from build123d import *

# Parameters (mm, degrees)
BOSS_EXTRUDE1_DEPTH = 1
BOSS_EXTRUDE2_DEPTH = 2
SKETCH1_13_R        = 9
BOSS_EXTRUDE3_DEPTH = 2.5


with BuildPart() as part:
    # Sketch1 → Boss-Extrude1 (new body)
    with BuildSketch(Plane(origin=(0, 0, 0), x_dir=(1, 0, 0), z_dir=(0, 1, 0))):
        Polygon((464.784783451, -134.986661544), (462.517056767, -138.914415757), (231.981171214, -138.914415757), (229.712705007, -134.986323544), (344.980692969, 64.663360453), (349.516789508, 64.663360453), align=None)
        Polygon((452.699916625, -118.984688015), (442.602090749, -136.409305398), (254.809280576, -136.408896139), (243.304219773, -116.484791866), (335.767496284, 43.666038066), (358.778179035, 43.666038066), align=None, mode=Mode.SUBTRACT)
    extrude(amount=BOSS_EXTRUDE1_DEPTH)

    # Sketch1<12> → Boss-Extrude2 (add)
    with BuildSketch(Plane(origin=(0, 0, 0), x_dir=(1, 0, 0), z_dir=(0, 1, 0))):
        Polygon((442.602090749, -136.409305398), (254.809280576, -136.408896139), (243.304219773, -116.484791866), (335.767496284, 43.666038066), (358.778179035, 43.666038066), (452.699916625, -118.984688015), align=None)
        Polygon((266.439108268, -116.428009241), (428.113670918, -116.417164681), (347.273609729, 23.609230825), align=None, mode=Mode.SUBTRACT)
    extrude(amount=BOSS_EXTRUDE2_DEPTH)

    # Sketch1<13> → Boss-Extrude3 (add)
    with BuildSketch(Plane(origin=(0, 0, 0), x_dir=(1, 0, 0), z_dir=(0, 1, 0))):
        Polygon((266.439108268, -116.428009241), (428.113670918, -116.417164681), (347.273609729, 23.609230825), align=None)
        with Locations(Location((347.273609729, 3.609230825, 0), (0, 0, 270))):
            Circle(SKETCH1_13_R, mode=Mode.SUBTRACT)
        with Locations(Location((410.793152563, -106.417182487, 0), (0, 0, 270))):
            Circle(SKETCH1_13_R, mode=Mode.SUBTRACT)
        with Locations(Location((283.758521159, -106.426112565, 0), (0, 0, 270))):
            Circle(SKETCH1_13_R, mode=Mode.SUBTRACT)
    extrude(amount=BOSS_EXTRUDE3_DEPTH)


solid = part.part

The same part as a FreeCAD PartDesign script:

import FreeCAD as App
import Part
import Sketcher

V = App.Vector
Q = App.Units.Quantity

doc = App.newDocument("Part")
body = doc.addObject("PartDesign::Body", "Body")

sketch1 = body.newObject("Sketcher::SketchObject", "Sketch")
sketch1.AttachmentSupport = (doc.getObject("XZ_Plane"), [""])
sketch1.MapMode = "FlatFace"
sketch1.addGeometry(Part.LineSegment(V(462.5, 138.9, 0), V(464.8, 135, 0)), False)
sketch1.addGeometry(Part.LineSegment(V(464.8, 135, 0), V(349.5, -64.7, 0)), False)
sketch1.addGeometry(Part.LineSegment(V(349.5, -64.7, 0), V(345, -64.7, 0)), False)
sketch1.addGeometry(Part.LineSegment(V(345, -64.7, 0), V(229.7, 135, 0)), False)
sketch1.addGeometry(Part.LineSegment(V(229.7, 135, 0), V(232, 138.9, 0)), False)
sketch1.addGeometry(Part.LineSegment(V(232, 138.9, 0), V(462.5, 138.9, 0)), False)
sketch1.addGeometry(Part.LineSegment(V(452.7, 119, 0), V(442.6, 136.4, 0)), False)
sketch1.addGeometry(Part.LineSegment(V(442.6, 136.4, 0), V(254.8, 136.4, 0)), False)
sketch1.addGeometry(Part.LineSegment(V(254.8, 136.4, 0), V(243.3, 116.5, 0)), False)
sketch1.addGeometry(Part.LineSegment(V(243.3, 116.5, 0), V(335.8, -43.7, 0)), False)
sketch1.addGeometry(Part.LineSegment(V(335.8, -43.7, 0), V(358.8, -43.7, 0)), False)
sketch1.addGeometry(Part.LineSegment(V(358.8, -43.7, 0), V(452.7, 119, 0)), False)
sketch1.addConstraint(Sketcher.Constraint("Coincident", 0, 2, 1, 1))
sketch1.addConstraint(Sketcher.Constraint("Coincident", 1, 2, 2, 1))
sketch1.addConstraint(Sketcher.Constraint("Coincident", 2, 2, 3, 1))
sketch1.addConstraint(Sketcher.Constraint("Coincident", 3, 2, 4, 1))
sketch1.addConstraint(Sketcher.Constraint("Coincident", 4, 2, 5, 1))
sketch1.addConstraint(Sketcher.Constraint("Coincident", 5, 2, 0, 1))
sketch1.addConstraint(Sketcher.Constraint("Coincident", 6, 2, 7, 1))
sketch1.addConstraint(Sketcher.Constraint("Coincident", 7, 2, 8, 1))
sketch1.addConstraint(Sketcher.Constraint("Coincident", 8, 2, 9, 1))
sketch1.addConstraint(Sketcher.Constraint("Coincident", 9, 2, 10, 1))
sketch1.addConstraint(Sketcher.Constraint("Coincident", 10, 2, 11, 1))
sketch1.addConstraint(Sketcher.Constraint("Coincident", 11, 2, 6, 1))
sketch1.addConstraint(Sketcher.Constraint("Horizontal", 2))
sketch1.addConstraint(Sketcher.Constraint("Horizontal", 5))
sketch1.addConstraint(Sketcher.Constraint("Horizontal", 10))
sketch1.addConstraint(Sketcher.Constraint("Parallel", 3, 9))
sketch1.addConstraint(Sketcher.Constraint("Parallel", 8, 11))
sketch1.addConstraint(Sketcher.Constraint("Angle", 1, Q("-120 deg")))
sketch1.addConstraint(Sketcher.Constraint("Distance", 0, 4.535398))
sketch1.addConstraint(Sketcher.Constraint("Distance", 6, 20.139101))
sketch1.addConstraint(Sketcher.Constraint("DistanceX", 1, 2, 6, 2, 93.085301))
sketch1.addConstraint(Sketcher.Constraint("Distance", 4, 4.536061))
sketch1.addConstraint(Sketcher.Constraint("Distance", 7, 187.79281))
sketch1.addConstraint(Sketcher.Constraint("Distance", 8, 23.007311))
sketch1.addConstraint(Sketcher.Constraint("Distance", 11, 187.82053))
sketch1.addConstraint(Sketcher.Constraint("DistanceX", 2, 2, 2, 1, 4.536097))
sketch1.addConstraint(Sketcher.Constraint("DistanceX", 5, 1, 5, 2, 230.535886))
sketch1.addConstraint(Sketcher.Constraint("DistanceX", 10, 1, 10, 2, 23.010683))
sketch1.addConstraint(Sketcher.Constraint("DistanceY", -1, 1, 0, 2, 134.986662))
sketch1.addConstraint(Sketcher.Constraint("DistanceX", -1, 1, 1, 2, 349.51679))
sketch1.addConstraint(Sketcher.Constraint("DistanceY", 1, 2, -1, 1, 64.66336))
sketch1.addConstraint(Sketcher.Constraint("DistanceX", -1, 1, 4, 2, 231.981171))
sketch1.addConstraint(Sketcher.Constraint("DistanceX", -1, 1, 8, 2, 243.30422))
sketch1.addConstraint(Sketcher.Constraint("DistanceY", -1, 1, 8, 2, 116.484792))
sketch1.addConstraint(Sketcher.Constraint("DistanceY", 9, 2, -1, 1, 43.666038))
sketch1.addConstraint(Sketcher.Constraint("DistanceX", -1, 1, 10, 2, 358.778179))
pad1 = body.newObject("PartDesign::Pad", "Pad")
pad1.Profile = sketch1
pad1.Length = 1
pad1.Reversed = True

sketch2 = body.newObject("Sketcher::SketchObject", "Sketch001")
sketch2.AttachmentSupport = (doc.getObject("XZ_Plane"), [""])
sketch2.MapMode = "FlatFace"
sketch2.addGeometry(Part.LineSegment(V(255, 136, 0), V(443, 136, 0)), False)
sketch2.addGeometry(Part.LineSegment(V(443, 136, 0), V(453, 119, 0)), False)
sketch2.addGeometry(Part.LineSegment(V(453, 119, 0), V(359, -44, 0)), False)
sketch2.addGeometry(Part.LineSegment(V(359, -44, 0), V(336, -44, 0)), False)
sketch2.addGeometry(Part.LineSegment(V(336, -44, 0), V(243, 116, 0)), False)
sketch2.addGeometry(Part.LineSegment(V(243, 116, 0), V(255, 136, 0)), False)
sketch2.addGeometry(Part.LineSegment(V(266, 116, 0), V(347, -24, 0)), False)
sketch2.addGeometry(Part.LineSegment(V(347, -24, 0), V(428, 116, 0)), False)
sketch2.addGeometry(Part.LineSegment(V(428, 116, 0), V(266, 116, 0)), False)
sketch2.addConstraint(Sketcher.Constraint("Coincident", 0, 2, 1, 1))
sketch2.addConstraint(Sketcher.Constraint("Coincident", 1, 2, 2, 1))
sketch2.addConstraint(Sketcher.Constraint("Coincident", 2, 2, 3, 1))
sketch2.addConstraint(Sketcher.Constraint("Coincident", 3, 2, 4, 1))
sketch2.addConstraint(Sketcher.Constraint("Coincident", 4, 2, 5, 1))
sketch2.addConstraint(Sketcher.Constraint("Coincident", 5, 2, 0, 1))
sketch2.addConstraint(Sketcher.Constraint("Coincident", 6, 2, 7, 1))
sketch2.addConstraint(Sketcher.Constraint("Coincident", 7, 2, 8, 1))
sketch2.addConstraint(Sketcher.Constraint("Coincident", 8, 2, 6, 1))
sketch2.addConstraint(Sketcher.Constraint("Horizontal", 3))
sketch2.addConstraint(Sketcher.Constraint("Parallel", 2, 5))
sketch2.addConstraint(Sketcher.Constraint("Distance", 1, 20.139101))
sketch2.addConstraint(Sketcher.Constraint("DistanceX", 5, 2, 2, 2, 103.968898))
sketch2.addConstraint(Sketcher.Constraint("DistanceX", 8, 2, 6, 2, 80.834501))
sketch2.addConstraint(Sketcher.Constraint("Distance", 0, 187.79281))
sketch2.addConstraint(Sketcher.Constraint("Distance", 2, 187.82053))
sketch2.addConstraint(Sketcher.Constraint("Distance", 5, 23.007311))
sketch2.addConstraint(Sketcher.Constraint("Distance", 6, 161.693059))
sketch2.addConstraint(Sketcher.Constraint("DistanceX", 3, 2, 3, 1, 23.010683))
sketch2.addConstraint(Sketcher.Constraint("DistanceX", -1, 1, 0, 2, 442.602091))
sketch2.addConstraint(Sketcher.Constraint("DistanceY", -1, 1, 1, 2, 118.984688))
sketch2.addConstraint(Sketcher.Constraint("DistanceY", 2, 2, -1, 1, 43.666038))
sketch2.addConstraint(Sketcher.Constraint("DistanceY", -1, 1, 4, 2, 116.484792))
sketch2.addConstraint(Sketcher.Constraint("DistanceX", -1, 1, 6, 2, 347.27361))
sketch2.addConstraint(Sketcher.Constraint("DistanceY", 6, 2, -1, 1, 23.609231))
sketch2.addConstraint(Sketcher.Constraint("DistanceX", -1, 1, 7, 2, 428.113671))
sketch2.addConstraint(Sketcher.Constraint("DistanceY", 7, 2, 0, 2, 19.992141))
pad2 = body.newObject("PartDesign::Pad", "Pad001")
pad2.Profile = sketch2
pad2.Length = 2
pad2.Reversed = True

sketch3 = body.newObject("Sketcher::SketchObject", "Sketch002")
sketch3.AttachmentSupport = (doc.getObject("XZ_Plane"), [""])
sketch3.MapMode = "FlatFace"
sketch3.addGeometry(Part.LineSegment(V(266, 116, 0), V(428, 116, 0)), False)
sketch3.addGeometry(Part.LineSegment(V(428, 116, 0), V(347, -24, 0)), False)
sketch3.addGeometry(Part.LineSegment(V(347, -24, 0), V(266, 116, 0)), False)
sketch3.addGeometry(Part.Circle(V(284, 106, 0), V(0, 0, 1), 9), False)
sketch3.addGeometry(Part.Circle(V(411, 106, 0), V(0, 0, 1), 9), False)
sketch3.addGeometry(Part.Circle(V(347, -4, 0), V(0, 0, 1), 9), False)
sketch3.addConstraint(Sketcher.Constraint("Coincident", 0, 2, 1, 1))
sketch3.addConstraint(Sketcher.Constraint("Coincident", 1, 2, 2, 1))
sketch3.addConstraint(Sketcher.Constraint("Coincident", 2, 2, 0, 1))
sketch3.addConstraint(Sketcher.Constraint("Equal", 3, 4))
sketch3.addConstraint(Sketcher.Constraint("Equal", 4, 5))
sketch3.addConstraint(Sketcher.Constraint("Vertical", 5, 3, 1, 2))
sketch3.addConstraint(Sketcher.Constraint("Diameter", 3, 18.0))
sketch3.addConstraint(Sketcher.Constraint("DistanceY", 1, 2, 5, 3, 20.0))
sketch3.addConstraint(Sketcher.Constraint("DistanceX", 2, 2, 5, 3, 80.834501))
sketch3.addConstraint(Sketcher.Constraint("Distance", 2, 161.693059))
sketch3.addConstraint(Sketcher.Constraint("DistanceX", -1, 1, 3, 3, 283.758521))
sketch3.addConstraint(Sketcher.Constraint("DistanceX", -1, 1, 5, 3, 347.27361))
sketch3.addConstraint(Sketcher.Constraint("DistanceY", 5, 3, -1, 1, 3.609231))
sketch3.addConstraint(Sketcher.Constraint("DistanceX", -1, 1, 0, 2, 428.113671))
sketch3.addConstraint(Sketcher.Constraint("DistanceX", 3, 3, 4, 3, 127.034631))
sketch3.addConstraint(Sketcher.Constraint("DistanceY", 4, 3, 3, 3, 0.00893))
sketch3.addConstraint(Sketcher.Constraint("Distance", 1, 161.686446))
sketch3.addConstraint(Sketcher.Constraint("DistanceY", -1, 1, 3, 3, 106.426113))
pad3 = body.newObject("PartDesign::Pad", "Pad002")
pad3.Profile = sketch3
pad3.Length = 2.5
pad3.Reversed = True

doc.recompute()
